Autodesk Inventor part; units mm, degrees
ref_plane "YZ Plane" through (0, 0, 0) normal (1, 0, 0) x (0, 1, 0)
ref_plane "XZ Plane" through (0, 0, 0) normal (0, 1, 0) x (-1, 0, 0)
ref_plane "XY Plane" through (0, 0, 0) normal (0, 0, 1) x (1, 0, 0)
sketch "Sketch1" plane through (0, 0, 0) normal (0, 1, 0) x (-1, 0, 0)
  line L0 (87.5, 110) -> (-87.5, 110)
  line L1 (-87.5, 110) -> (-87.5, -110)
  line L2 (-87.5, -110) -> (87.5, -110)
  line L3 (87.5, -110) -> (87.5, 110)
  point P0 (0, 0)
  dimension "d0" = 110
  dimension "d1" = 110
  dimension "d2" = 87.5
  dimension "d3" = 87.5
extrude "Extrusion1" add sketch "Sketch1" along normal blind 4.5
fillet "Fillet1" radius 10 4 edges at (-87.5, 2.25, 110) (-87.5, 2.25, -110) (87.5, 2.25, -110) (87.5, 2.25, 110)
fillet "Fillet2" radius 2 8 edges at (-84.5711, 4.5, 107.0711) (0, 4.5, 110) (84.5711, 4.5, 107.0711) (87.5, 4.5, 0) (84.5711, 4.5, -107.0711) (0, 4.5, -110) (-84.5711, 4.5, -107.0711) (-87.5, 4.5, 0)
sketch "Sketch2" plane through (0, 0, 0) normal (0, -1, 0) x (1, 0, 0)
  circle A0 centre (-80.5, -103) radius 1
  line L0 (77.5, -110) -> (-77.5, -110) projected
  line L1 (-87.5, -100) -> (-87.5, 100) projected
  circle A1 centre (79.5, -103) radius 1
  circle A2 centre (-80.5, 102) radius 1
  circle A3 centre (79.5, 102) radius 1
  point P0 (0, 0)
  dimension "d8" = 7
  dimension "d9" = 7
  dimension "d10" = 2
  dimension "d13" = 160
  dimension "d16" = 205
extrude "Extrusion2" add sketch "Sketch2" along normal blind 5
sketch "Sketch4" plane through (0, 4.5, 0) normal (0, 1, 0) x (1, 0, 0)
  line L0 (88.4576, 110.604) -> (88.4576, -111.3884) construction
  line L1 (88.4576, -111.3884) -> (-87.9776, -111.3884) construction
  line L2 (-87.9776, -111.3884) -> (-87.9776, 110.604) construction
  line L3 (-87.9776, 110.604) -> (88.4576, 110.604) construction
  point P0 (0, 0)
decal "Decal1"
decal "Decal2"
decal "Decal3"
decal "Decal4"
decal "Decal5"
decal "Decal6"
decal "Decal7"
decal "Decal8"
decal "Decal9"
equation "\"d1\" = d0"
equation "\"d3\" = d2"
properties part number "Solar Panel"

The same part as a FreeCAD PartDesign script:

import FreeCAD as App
import Part
import Sketcher
from FreeCAD import Vector


def edges_at(feature, points):
    """Names of the edges that pass closest to the given points."""
    edges = feature.Shape.Edges
    near = lambda p: min(range(len(edges)), key=lambda i: edges[i].distToShape(Part.Vertex(*p))[0])
    return sorted({f"Edge{near(p) + 1}" for p in points})

doc = App.newDocument("Part")
body = doc.addObject("PartDesign::Body", "Body")

# Sketch on XZ plane
sketch1 = body.newObject("Sketcher::SketchObject", "Sketch")
sketch1.AttachmentSupport = (doc.getObject("XZ_Plane"), [""])
sketch1.MapMode = "FlatFace"
sketch1.addGeometry(Part.LineSegment(Vector(-87.5, -110, 0), Vector(-87.5, 110, 0)), False)
sketch1.addGeometry(Part.LineSegment(Vector(-87.5, 110, 0), Vector(87.5, 110, 0)), False)
sketch1.addGeometry(Part.LineSegment(Vector(87.5, 110, 0), Vector(87.5, -110, 0)), False)
sketch1.addGeometry(Part.LineSegment(Vector(87.5, -110, 0), Vector(-87.5, -110, 0)), False)
sketch1.addConstraint(Sketcher.Constraint("Coincident", 0, 2, 1, 1))
sketch1.addConstraint(Sketcher.Constraint("Coincident", 1, 2, 2, 1))
sketch1.addConstraint(Sketcher.Constraint("Coincident", 2, 2, 3, 1))
sketch1.addConstraint(Sketcher.Constraint("Coincident", 3, 2, 0, 1))
sketch1.addConstraint(Sketcher.Constraint("Vertical", 0))
sketch1.addConstraint(Sketcher.Constraint("Horizontal", 1))
sketch1.addConstraint(Sketcher.Constraint("Vertical", 2))
sketch1.addConstraint(Sketcher.Constraint("Horizontal", 3))
sketch1.addConstraint(Sketcher.Constraint("Symmetric", 0, 2, 2, 2, -1, 1))
sketch1.addConstraint(Sketcher.Constraint("DistanceY", -1, 1, 0, 2, 110.0))
sketch1.addConstraint(Sketcher.Constraint("DistanceX", 0, 2, -1, 1, 87.5))
pad1 = body.newObject("PartDesign::Pad", "Pad")
pad1.Profile = sketch1
pad1.Length = 4.5
pad1.Reversed = True
doc.recompute()

fillet = body.newObject("PartDesign::Fillet", "Fillet")
fillet.Base = (pad1, edges_at(pad1, [
    (-87.5, 2.25, 110),
    (-87.5, 2.25, -110),
    (87.5, 2.25, -110),
    (87.5, 2.25, 110),
]))
fillet.Radius = 10
doc.recompute()

fillet2 = body.newObject("PartDesign::Fillet", "Fillet001")
fillet2.Base = (fillet, edges_at(fillet, [
    (-84.571, 4.5, 107.071),
    (0, 4.5, 110),
    (84.571, 4.5, 107.071),
    (87.5, 4.5, 0),
    (84.571, 4.5, -107.071),
    (0, 4.5, -110),
    (-84.571, 4.5, -107.071),
    (-87.5, 4.5, 0),
]))
fillet2.Radius = 2

# Sketch on XZ plane
sketch2 = body.newObject("Sketcher::SketchObject", "Sketch001")
sketch2.AttachmentSupport = (doc.getObject("XZ_Plane"), [""])
sketch2.MapMode = "FlatFace"
sketch2.addGeometry(Part.Circle(Vector(-80.5, -103, 0), Vector(0, 0, 1), 1), False)
sketch2.addGeometry(Part.Circle(Vector(79.5, -103, 0), Vector(0, 0, 1), 1), False)
sketch2.addGeometry(Part.Circle(Vector(-80.5, 102, 0), Vector(0, 0, 1), 1), False)
sketch2.addGeometry(Part.Circle(Vector(79.5, 102, 0), Vector(0, 0, 1), 1), False)
sketch2.addConstraint(Sketcher.Constraint("Equal", 0, 1))
sketch2.addConstraint(Sketcher.Constraint("Equal", 1, 2))
sketch2.addConstraint(Sketcher.Constraint("Equal", 2, 3))
sketch2.addConstraint(Sketcher.Constraint("Horizontal", 0, 3, 1, 3))
sketch2.addConstraint(Sketcher.Constraint("Horizontal", 2, 3, 3, 3))
sketch2.addConstraint(Sketcher.Constraint("Vertical", 0, 3, 2, 3))
sketch2.addConstraint(Sketcher.Constraint("Vertical", 1, 3, 3, 3))
sketch2.addConstraint(Sketcher.Constraint("Diameter", 0, 2.0))
sketch2.addConstraint(Sketcher.Constraint("DistanceX", 0, 3, 1, 3, 160.0))
sketch2.addConstraint(Sketcher.Constraint("DistanceY", 0, 3, 2, 3, 205.0))
sketch2.addConstraint(Sketcher.Constraint("DistanceY", 0, 3, -1, 1, 103.0))
sketch2.addConstraint(Sketcher.Constraint("DistanceX", 0, 3, -1, 1, 80.5))
pad2 = body.newObject("PartDesign::Pad", "Pad001")
pad2.Profile = sketch2
pad2.Length = 5

doc.recompute()
